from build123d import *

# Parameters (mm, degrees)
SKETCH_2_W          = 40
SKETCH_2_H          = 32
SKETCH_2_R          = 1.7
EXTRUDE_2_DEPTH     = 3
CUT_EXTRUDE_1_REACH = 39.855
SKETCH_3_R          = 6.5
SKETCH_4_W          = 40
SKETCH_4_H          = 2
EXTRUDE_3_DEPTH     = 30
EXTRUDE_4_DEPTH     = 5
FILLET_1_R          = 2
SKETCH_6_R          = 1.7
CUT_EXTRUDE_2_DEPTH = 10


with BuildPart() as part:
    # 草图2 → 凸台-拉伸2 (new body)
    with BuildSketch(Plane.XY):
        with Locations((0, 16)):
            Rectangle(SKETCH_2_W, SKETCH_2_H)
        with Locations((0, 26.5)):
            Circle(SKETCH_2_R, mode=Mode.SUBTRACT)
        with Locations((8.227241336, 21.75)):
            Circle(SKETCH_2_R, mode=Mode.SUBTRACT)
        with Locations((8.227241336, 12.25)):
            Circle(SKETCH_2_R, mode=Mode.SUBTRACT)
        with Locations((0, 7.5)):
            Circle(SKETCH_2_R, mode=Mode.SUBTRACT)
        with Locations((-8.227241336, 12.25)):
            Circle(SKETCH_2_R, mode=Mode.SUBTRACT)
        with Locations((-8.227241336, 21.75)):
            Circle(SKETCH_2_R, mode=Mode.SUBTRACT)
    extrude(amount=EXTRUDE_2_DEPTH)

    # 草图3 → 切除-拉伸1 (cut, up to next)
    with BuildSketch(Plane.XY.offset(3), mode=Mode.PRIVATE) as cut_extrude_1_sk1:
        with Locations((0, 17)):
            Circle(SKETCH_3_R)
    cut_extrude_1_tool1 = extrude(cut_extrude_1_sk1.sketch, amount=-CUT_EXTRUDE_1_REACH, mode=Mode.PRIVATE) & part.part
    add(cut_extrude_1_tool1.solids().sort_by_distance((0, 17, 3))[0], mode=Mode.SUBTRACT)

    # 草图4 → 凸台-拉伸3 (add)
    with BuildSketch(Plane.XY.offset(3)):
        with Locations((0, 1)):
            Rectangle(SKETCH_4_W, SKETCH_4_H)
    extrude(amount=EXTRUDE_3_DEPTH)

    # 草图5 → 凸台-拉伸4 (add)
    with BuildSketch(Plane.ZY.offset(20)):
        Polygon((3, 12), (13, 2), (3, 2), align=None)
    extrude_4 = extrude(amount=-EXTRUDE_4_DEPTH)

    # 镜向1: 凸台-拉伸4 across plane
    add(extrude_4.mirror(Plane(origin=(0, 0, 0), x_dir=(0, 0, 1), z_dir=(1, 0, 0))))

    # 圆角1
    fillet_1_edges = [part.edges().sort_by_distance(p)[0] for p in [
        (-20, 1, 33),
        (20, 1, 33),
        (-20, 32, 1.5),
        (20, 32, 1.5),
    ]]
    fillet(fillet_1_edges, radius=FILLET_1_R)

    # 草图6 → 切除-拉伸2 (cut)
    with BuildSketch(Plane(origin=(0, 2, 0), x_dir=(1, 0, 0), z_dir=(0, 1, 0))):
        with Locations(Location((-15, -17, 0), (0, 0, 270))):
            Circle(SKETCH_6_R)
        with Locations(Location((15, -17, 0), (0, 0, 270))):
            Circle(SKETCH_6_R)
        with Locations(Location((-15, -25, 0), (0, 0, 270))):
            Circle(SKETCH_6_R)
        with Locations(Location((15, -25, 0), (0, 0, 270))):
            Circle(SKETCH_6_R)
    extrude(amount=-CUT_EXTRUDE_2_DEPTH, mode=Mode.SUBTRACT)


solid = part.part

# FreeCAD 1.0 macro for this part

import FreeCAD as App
import Part
import Sketcher

V = App.Vector


def edges_at(feature, points):
    """Names of the edges that pass closest to the given points."""
    edges = feature.Shape.Edges
    near = lambda p: min(range(len(edges)), key=lambda i: edges[i].distToShape(Part.Vertex(*p))[0])
    return sorted({f"Edge{near(p) + 1}" for p in points})


def add_polygon(sketch, points):
    """Adds a closed chain of lines whose ends are joined by coincident constraints."""
    first, n = sketch.GeometryCount, len(points)
    for a, b in zip(points, points[1:] + points[:1]):
        sketch.addGeometry(Part.LineSegment(App.Vector(*a, 0), App.Vector(*b, 0)), False)
    for i in range(n):
        sketch.addConstraint(Sketcher.Constraint("Coincident", first + i, 2, first + (i + 1) % n, 1))

doc = App.newDocument("Part")
body = doc.addObject("PartDesign::Body", "Body")

# Sketch on XY plane
sketch1 = body.newObject("Sketcher::SketchObject", "Sketch")
sketch1.AttachmentSupport = (doc.getObject("XY_Plane"), [""])
sketch1.MapMode = "FlatFace"
add_polygon(sketch1, [(-20, 32), (-20, 0), (20, 0), (20, 32)])  # lines 0-3
sketch1.addGeometry(Part.Circle(V(-8.2, 12.2, 0), V(0, 0, 1), 1.7), False)  # 4
sketch1.addGeometry(Part.Circle(V(0, 7.5, 0), V(0, 0, 1), 1.7), False)  # 5
sketch1.addGeometry(Part.Circle(V(8.2, 12.2, 0), V(0, 0, 1), 1.7), False)  # 6
sketch1.addGeometry(Part.Circle(V(-8.2, 21.8, 0), V(0, 0, 1), 1.7), False)  # 7
sketch1.addGeometry(Part.Circle(V(8.2, 21.8, 0), V(0, 0, 1), 1.7), False)  # 8
sketch1.addGeometry(Part.Circle(V(0, 26.5, 0), V(0, 0, 1), 1.7), False)  # 9
sketch1.addConstraint([
    Sketcher.Constraint("Vertical", 0),
    Sketcher.Constraint("Horizontal", 1),
    Sketcher.Constraint("Vertical", 2),
    Sketcher.Constraint("Horizontal", 3),
    Sketcher.Constraint("Equal", 4, 5),
    Sketcher.Constraint("Equal", 5, 6),
    Sketcher.Constraint("Equal", 6, 7),
    Sketcher.Constraint("Equal", 7, 8),
    Sketcher.Constraint("Equal", 8, 9),
    Sketcher.Constraint("Symmetric", 0, 2, 1, 2, -1, 1),
    Sketcher.Constraint("Symmetric", 4, 3, 6, 3, -2),
    Sketcher.Constraint("Symmetric", 7, 3, 8, 3, -2),
    Sketcher.Constraint("PointOnObject", 5, 3, -2),
    Sketcher.Constraint("PointOnObject", 9, 3, -2),
    Sketcher.Constraint("Vertical", 4, 3, 7, 3),
    Sketcher.Constraint("Diameter", 4, 3.4),
    Sketcher.Constraint("DistanceX", 1, 1, 1, 2, 40.0),
    Sketcher.Constraint("DistanceY", 0, 2, 0, 1, 32.0),
    Sketcher.Constraint("DistanceY", 5, 3, 9, 3, 19.0),
    Sketcher.Constraint("DistanceY", -1, 1, 5, 3, 7.5),
    Sketcher.Constraint("DistanceY", 4, 3, 7, 3, 9.5),
    Sketcher.Constraint("DistanceY", -1, 1, 4, 3, 12.25),
    Sketcher.Constraint("DistanceX", 4, 3, -1, 1, 8.227241),
])
pad1 = body.newObject("PartDesign::Pad", "Pad")
pad1.Profile = sketch1
pad1.Length = 3

# Sketch on XY plane
sketch2 = body.newObject("Sketcher::SketchObject", "Sketch001")
sketch2.AttachmentSupport = (doc.getObject("XY_Plane"), [""])
sketch2.MapMode = "FlatFace"
sketch2.AttachmentOffset = App.Placement(V(0, 0, 3), App.Rotation())
sketch2.addGeometry(Part.Circle(V(0, 17, 0), V(0, 0, 1), 6), False)
sketch2.addConstraint([
    Sketcher.Constraint("PointOnObject", 0, 3, -2),
    Sketcher.Constraint("Diameter", 0, 13.0),
    Sketcher.Constraint("DistanceY", -1, 1, 0, 3, 17.0),
])
pocket1 = body.newObject("PartDesign::Pocket", "Pocket")
pocket1.Profile = sketch2
pocket1.Type = "UpToFirst"

# Sketch on XY plane
sketch3 = body.newObject("Sketcher::SketchObject", "Sketch002")
sketch3.AttachmentSupport = (doc.getObject("XY_Plane"), [""])
sketch3.MapMode = "FlatFace"
sketch3.AttachmentOffset = App.Placement(V(0, 0, 3), App.Rotation())
add_polygon(sketch3, [(-20, 2), (-20, 0), (20, 0), (20, 2)])  # lines 0-3
sketch3.addConstraint([
    Sketcher.Constraint("Vertical", 0),
    Sketcher.Constraint("Horizontal", 1),
    Sketcher.Constraint("Vertical", 2),
    Sketcher.Constraint("Horizontal", 3),
    Sketcher.Constraint("Symmetric", 0, 2, 1, 2, -1, 1),
    Sketcher.Constraint("DistanceX", 1, 1, 1, 2, 40.0),
    Sketcher.Constraint("DistanceY", 0, 2, 0, 1, 2.0),
])
pad2 = body.newObject("PartDesign::Pad", "Pad001")
pad2.Profile = sketch3
pad2.Length = 30

# Sketch on YZ plane
sketch4 = body.newObject("Sketcher::SketchObject", "Sketch003")
sketch4.AttachmentSupport = (doc.getObject("YZ_Plane"), [""])
sketch4.MapMode = "FlatFace"
sketch4.AttachmentOffset = App.Placement(V(0, 0, -20), App.Rotation())
add_polygon(sketch4, [(2, 13), (12, 3), (2, 3)])  # lines 0-2
sketch4.addConstraint([
    Sketcher.Constraint("Horizontal", 1),
    Sketcher.Constraint("Vertical", 2),
    Sketcher.Constraint("Equal", 1, 2),
    Sketcher.Constraint("DistanceX", 1, 2, 1, 1, 10.0),
    Sketcher.Constraint("DistanceX", -1, 1, 0, 2, 12.0),
    Sketcher.Constraint("DistanceY", -1, 1, 0, 2, 3.0),
])
pad3 = body.newObject("PartDesign::Pad", "Pad002")
pad3.Profile = sketch4
pad3.Length = 5
doc.recompute()

mirrored = body.newObject("PartDesign::Mirrored", "Mirrored")
mirrored.Originals = [pad3]
mirrored.MirrorPlane = (doc.getObject("YZ_Plane"), [""])
body.Tip = mirrored
doc.recompute()

fillet = body.newObject("PartDesign::Fillet", "Fillet")
fillet.Base = (mirrored, edges_at(mirrored, [
    (-20, 1, 33),
    (20, 1, 33),
    (-20, 32, 1.5),
    (20, 32, 1.5),
]))
fillet.Radius = 2

# Sketch on XZ plane
sketch5 = body.newObject("Sketcher::SketchObject", "Sketch004")
sketch5.AttachmentSupport = (doc.getObject("XZ_Plane"), [""])
sketch5.MapMode = "FlatFace"
sketch5.AttachmentOffset = App.Placement(V(0, 0, -2), App.Rotation())
sketch5.addGeometry([
    Part.Circle(V(-15, 17, 0), V(0, 0, 1), 1.7),
    Part.Circle(V(15, 17, 0), V(0, 0, 1), 1.7),
    Part.Circle(V(-15, 25, 0), V(0, 0, 1), 1.7),
    Part.Circle(V(15, 25, 0), V(0, 0, 1), 1.7),
], False)
sketch5.addConstraint([
    Sketcher.Constraint("Equal", 0, 1),
    Sketcher.Constraint("Equal", 1, 2),
    Sketcher.Constraint("Equal", 2, 3),
    Sketcher.Constraint("Symmetric", 0, 3, 1, 3, -2),
    Sketcher.Constraint("Symmetric", 2, 3, 3, 3, -2),
    Sketcher.Constraint("Vertical", 0, 3, 2, 3),
    Sketcher.Constraint("Diameter", 0, 3.4),
    Sketcher.Constraint("DistanceX", 0, 3, -1, 1, 15.0),
    Sketcher.Constraint("DistanceY", -1, 1, 0, 3, 17.0),
    Sketcher.Constraint("DistanceY", -1, 1, 2, 3, 25.0),
])
pocket2 = body.newObject("PartDesign::Pocket", "Pocket001")
pocket2.Profile = sketch5
pocket2.Length = 10
pocket2.Reversed = True

doc.recompute()
